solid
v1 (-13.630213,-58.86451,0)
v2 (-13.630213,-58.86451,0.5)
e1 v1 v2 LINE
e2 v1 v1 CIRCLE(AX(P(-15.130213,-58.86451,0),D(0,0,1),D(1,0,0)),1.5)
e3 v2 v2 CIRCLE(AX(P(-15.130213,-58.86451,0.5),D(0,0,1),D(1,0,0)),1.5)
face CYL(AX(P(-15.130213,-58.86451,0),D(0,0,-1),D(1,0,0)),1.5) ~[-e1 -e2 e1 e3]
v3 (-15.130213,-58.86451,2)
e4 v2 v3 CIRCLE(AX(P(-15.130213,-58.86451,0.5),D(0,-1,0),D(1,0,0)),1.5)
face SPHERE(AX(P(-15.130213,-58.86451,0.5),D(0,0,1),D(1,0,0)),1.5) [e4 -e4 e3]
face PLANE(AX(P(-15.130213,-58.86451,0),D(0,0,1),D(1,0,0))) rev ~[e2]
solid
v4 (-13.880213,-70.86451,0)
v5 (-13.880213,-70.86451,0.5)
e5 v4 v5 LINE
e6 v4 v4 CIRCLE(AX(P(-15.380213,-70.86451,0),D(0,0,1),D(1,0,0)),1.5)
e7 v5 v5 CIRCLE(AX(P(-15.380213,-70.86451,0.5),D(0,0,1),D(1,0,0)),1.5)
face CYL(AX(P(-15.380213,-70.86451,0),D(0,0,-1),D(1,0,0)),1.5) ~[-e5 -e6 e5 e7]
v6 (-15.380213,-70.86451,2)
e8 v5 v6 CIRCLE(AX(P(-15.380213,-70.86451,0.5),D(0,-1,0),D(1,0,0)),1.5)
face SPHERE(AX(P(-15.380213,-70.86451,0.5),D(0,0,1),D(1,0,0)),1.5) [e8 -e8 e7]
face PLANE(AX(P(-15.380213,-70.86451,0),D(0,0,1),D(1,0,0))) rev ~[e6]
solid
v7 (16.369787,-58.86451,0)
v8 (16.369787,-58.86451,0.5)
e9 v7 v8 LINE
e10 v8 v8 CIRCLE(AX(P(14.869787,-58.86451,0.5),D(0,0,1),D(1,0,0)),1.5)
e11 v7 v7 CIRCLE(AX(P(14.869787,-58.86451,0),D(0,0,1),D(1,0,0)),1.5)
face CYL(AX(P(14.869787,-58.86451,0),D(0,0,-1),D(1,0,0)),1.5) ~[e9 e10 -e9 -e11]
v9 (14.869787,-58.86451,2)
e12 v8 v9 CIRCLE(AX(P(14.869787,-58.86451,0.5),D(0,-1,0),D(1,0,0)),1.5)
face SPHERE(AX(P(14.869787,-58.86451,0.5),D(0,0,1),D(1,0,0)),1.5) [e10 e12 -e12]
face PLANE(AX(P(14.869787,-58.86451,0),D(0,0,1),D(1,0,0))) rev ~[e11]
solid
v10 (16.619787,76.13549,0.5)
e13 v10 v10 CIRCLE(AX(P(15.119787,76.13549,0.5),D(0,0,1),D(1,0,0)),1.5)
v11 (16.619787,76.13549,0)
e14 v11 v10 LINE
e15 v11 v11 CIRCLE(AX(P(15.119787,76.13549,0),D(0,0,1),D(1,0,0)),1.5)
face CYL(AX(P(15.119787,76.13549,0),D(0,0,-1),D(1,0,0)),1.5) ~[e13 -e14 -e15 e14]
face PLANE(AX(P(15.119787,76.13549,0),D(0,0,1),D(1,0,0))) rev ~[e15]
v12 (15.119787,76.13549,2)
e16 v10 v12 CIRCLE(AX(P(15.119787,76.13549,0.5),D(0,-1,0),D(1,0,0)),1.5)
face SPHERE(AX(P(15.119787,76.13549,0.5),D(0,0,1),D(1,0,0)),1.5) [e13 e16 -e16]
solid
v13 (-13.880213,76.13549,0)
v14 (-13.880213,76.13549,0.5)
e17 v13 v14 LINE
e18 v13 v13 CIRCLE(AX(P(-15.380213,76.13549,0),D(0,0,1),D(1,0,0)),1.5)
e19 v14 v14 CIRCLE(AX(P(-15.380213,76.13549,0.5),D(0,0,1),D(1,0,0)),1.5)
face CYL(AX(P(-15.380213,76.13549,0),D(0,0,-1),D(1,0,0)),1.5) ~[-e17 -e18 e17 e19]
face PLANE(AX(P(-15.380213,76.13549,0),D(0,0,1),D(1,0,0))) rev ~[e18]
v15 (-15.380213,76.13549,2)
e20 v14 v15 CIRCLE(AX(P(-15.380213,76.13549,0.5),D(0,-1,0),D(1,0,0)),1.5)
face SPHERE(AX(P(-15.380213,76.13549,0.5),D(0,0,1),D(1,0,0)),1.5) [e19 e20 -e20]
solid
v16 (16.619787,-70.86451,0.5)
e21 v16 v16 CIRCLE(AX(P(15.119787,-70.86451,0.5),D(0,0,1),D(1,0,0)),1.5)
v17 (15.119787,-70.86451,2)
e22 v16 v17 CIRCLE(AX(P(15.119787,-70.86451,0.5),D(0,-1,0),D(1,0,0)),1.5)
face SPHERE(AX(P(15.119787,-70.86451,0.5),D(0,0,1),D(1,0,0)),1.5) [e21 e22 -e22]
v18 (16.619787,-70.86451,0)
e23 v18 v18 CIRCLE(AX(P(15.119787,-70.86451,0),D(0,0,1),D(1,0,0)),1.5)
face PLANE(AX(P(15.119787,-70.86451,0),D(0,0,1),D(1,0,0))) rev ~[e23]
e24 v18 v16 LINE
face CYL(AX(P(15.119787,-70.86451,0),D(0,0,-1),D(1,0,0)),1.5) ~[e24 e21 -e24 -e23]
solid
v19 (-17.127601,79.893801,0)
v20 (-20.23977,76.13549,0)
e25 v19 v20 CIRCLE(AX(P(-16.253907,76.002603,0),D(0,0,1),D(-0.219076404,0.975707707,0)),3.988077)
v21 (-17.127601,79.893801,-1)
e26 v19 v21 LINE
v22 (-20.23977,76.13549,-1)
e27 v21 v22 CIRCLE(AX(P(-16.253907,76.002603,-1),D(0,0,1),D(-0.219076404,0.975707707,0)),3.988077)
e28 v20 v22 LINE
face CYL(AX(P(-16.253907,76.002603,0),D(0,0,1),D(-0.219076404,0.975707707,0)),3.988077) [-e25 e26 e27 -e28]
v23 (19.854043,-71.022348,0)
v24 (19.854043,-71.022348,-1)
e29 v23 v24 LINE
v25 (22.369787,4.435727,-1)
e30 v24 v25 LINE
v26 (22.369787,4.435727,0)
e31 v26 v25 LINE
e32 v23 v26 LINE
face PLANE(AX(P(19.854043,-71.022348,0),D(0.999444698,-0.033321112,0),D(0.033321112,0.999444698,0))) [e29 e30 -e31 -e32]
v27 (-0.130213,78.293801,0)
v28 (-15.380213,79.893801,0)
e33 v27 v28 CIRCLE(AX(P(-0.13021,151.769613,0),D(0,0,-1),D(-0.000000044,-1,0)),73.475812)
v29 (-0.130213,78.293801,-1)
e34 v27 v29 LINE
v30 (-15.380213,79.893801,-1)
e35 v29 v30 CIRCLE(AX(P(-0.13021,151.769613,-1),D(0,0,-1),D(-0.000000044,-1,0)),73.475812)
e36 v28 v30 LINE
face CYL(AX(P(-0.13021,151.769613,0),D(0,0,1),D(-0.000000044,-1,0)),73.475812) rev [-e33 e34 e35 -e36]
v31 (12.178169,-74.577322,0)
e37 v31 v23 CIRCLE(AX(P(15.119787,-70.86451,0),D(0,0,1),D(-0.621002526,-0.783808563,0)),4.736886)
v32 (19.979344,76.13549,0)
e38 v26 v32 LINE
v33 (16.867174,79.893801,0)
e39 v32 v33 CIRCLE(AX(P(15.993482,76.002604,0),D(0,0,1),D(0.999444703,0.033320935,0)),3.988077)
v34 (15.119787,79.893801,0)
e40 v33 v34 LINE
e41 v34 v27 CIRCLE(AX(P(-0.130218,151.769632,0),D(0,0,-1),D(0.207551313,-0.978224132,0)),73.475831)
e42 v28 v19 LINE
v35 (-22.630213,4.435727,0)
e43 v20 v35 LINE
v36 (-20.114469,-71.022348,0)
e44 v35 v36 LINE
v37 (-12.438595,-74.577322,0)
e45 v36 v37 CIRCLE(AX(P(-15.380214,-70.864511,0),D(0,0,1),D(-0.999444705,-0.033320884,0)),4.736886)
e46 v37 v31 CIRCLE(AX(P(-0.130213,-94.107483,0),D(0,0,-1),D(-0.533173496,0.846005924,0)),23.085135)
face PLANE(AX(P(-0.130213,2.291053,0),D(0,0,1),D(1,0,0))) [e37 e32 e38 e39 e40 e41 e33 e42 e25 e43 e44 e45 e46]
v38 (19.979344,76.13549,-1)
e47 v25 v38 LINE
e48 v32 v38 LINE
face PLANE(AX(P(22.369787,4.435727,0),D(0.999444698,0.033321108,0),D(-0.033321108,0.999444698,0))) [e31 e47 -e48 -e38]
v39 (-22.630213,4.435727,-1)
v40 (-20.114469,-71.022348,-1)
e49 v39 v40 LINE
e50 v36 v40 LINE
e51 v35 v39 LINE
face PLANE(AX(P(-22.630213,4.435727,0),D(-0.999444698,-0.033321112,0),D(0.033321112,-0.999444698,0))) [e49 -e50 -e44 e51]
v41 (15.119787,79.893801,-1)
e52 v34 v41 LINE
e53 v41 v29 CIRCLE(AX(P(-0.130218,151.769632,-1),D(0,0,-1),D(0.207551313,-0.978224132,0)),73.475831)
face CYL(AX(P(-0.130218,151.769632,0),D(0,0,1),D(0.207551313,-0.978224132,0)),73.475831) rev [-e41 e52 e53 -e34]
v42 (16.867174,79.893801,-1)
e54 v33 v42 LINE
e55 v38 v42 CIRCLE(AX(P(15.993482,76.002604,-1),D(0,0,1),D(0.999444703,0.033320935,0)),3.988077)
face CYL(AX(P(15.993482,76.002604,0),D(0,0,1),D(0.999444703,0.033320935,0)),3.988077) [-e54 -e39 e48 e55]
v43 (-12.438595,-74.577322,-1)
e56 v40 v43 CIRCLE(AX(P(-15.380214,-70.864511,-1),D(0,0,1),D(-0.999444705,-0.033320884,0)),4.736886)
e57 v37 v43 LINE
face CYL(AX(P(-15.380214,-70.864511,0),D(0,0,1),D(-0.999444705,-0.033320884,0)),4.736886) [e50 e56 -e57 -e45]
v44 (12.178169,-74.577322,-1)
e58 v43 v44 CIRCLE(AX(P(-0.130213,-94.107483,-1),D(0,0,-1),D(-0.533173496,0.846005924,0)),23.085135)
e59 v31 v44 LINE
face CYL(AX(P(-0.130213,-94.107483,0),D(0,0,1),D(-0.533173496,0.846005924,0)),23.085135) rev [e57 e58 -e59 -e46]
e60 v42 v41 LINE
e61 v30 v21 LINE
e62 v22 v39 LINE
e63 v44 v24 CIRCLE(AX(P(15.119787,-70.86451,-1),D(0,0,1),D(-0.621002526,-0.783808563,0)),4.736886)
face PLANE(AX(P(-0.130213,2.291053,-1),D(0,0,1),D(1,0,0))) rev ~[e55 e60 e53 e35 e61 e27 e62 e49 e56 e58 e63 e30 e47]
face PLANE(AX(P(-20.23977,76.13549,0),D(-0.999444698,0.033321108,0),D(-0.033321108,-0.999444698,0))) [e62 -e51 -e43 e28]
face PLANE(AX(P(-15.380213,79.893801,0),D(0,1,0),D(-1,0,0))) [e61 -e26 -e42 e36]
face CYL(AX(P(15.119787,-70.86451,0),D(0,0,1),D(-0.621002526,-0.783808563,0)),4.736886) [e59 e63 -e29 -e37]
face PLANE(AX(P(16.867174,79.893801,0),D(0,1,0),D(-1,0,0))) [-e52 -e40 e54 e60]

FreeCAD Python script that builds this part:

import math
import FreeCAD as App
import Part
import Sketcher

V = App.Vector


def edges_at(feature, points):
    """Names of the edges that pass closest to the given points."""
    edges = feature.Shape.Edges
    near = lambda p: min(range(len(edges)), key=lambda i: edges[i].distToShape(Part.Vertex(*p))[0])
    return sorted({f"Edge{near(p) + 1}" for p in points})

doc = App.newDocument("Part")
body = doc.addObject("PartDesign::Body", "Body")
body.AllowCompound = True

# Sketch on XY plane
sketch1 = body.newObject("Sketcher::SketchObject", "Sketch")
sketch1.AttachmentSupport = (doc.getObject("XY_Plane"), [""])
sketch1.MapMode = "FlatFace"
sketch1.addGeometry([
    Part.Circle(V(15.1, -70.9, 0), V(0, 0, 1), 1.5),  # 0
    Part.Circle(V(14.9, -58.9, 0), V(0, 0, 1), 1.5),  # 1
    Part.Circle(V(-15.4, -70.9, 0), V(0, 0, 1), 1.5),  # 2
    Part.Circle(V(-15.1, -58.9, 0), V(0, 0, 1), 1.5),  # 3
    Part.Circle(V(15.1, 76.1, 0), V(0, 0, 1), 1.5),  # 4
    Part.Circle(V(-15.4, 76.1, 0), V(0, 0, 1), 1.5),  # 5
], False)
sketch1.addConstraint([
    Sketcher.Constraint("Equal", 0, 1),
    Sketcher.Constraint("Equal", 1, 2),
    Sketcher.Constraint("Equal", 2, 3),
    Sketcher.Constraint("Equal", 3, 4),
    Sketcher.Constraint("Equal", 4, 5),
    Sketcher.Constraint("Horizontal", 0, 3, 2, 3),
    Sketcher.Constraint("Horizontal", 1, 3, 3, 3),
    Sketcher.Constraint("Horizontal", 4, 3, 5, 3),
    Sketcher.Constraint("Vertical", 0, 3, 4, 3),
    Sketcher.Constraint("Vertical", 2, 3, 5, 3),
    Sketcher.Constraint("Diameter", 0, 3.0),
    Sketcher.Constraint("DistanceY", 0, 3, 1, 3, 12.0),
    Sketcher.Constraint("DistanceX", 3, 3, 1, 3, 30.0),
    Sketcher.Constraint("DistanceY", 1, 3, 4, 3, 135.0),
    Sketcher.Constraint("DistanceX", 2, 3, 0, 3, 30.5),
    Sketcher.Constraint("DistanceX", 1, 3, 0, 3, 0.25),
    Sketcher.Constraint("DistanceY", 0, 3, -1, 1, 70.86451),
    Sketcher.Constraint("DistanceX", -1, 1, 0, 3, 15.119787),
])
pad1 = body.newObject("PartDesign::Pad", "Pad")
pad1.Profile = sketch1
pad1.Length = 2
doc.recompute()

fillet = body.newObject("PartDesign::Fillet", "Fillet")
fillet.Base = (pad1, edges_at(pad1, [
    (13.62, 76.135, 2),
    (-16.88, 76.135, 2),
    (13.37, -58.865, 2),
    (13.62, -70.865, 2),
    (-16.63, -58.865, 2),
    (-16.88, -70.865, 2),
]))
fillet.Radius = 1.5
body2 = doc.addObject("PartDesign::Body", "Body001")

# Sketch on XY plane
sketch2 = body2.newObject("Sketcher::SketchObject", "Sketch001")
sketch2.AttachmentSupport = (doc.getObject("XY_Plane001"), [""])
sketch2.MapMode = "FlatFace"
sketch2.addGeometry([
    Part.ArcOfCircle(Part.Circle(V(-16.253907, 76.002603, 0), V(0, 0, 1), 3.988077), math.radians(102.654792), math.radians(178.090495)),  # 0
    Part.LineSegment(V(-20.23977, 76.13549, 0), V(-22.630213, 4.435727, 0)),  # 1
    Part.LineSegment(V(-22.630213, 4.435727, 0), V(-20.114469, -71.022348, 0)),  # 2
    Part.ArcOfCircle(Part.Circle(V(-15.380214, -70.864511, 0), V(0, 0, 1), 4.736886), math.radians(-178.090501), math.radians(-51.610611)),  # 3
    Part.ArcOfCircle(Part.Circle(V(-0.130213, -94.107483, 0), V(0, 0, 1), 23.085135), math.radians(57.779873), math.radians(122.220127)),  # 4
    Part.ArcOfCircle(Part.Circle(V(15.119787, -70.86451, 0), V(0, 0, 1), 4.736886), math.radians(-128.389381), math.radians(-1.909508)),  # 5
    Part.LineSegment(V(19.854043, -71.022348, 0), V(22.369787, 4.435727, 0)),  # 6
    Part.LineSegment(V(22.369787, 4.435727, 0), V(19.979344, 76.13549, 0)),  # 7
    Part.ArcOfCircle(Part.Circle(V(15.993482, 76.002604, 0), V(0, 0, 1), 3.988077), math.radians(1.909502), math.radians(77.345229)),  # 8
    Part.LineSegment(V(16.867174, 79.893801, 0), V(15.119787, 79.893801, 0)),  # 9
    Part.ArcOfCircle(Part.Circle(V(-0.130218, 151.769632, 0), V(0, 0, 1), 73.475831), math.radians(-89.999996), math.radians(-78.021109)),  # 10
    Part.ArcOfCircle(Part.Circle(V(-0.13021, 151.769613, 0), V(0, 0, 1), 73.475812), math.radians(-101.978893), math.radians(-90.000003)),  # 11
    Part.LineSegment(V(-15.380213, 79.893801, 0), V(-17.127601, 79.893801, 0)),  # 12
], False)
sketch2.addConstraint([
    Sketcher.Constraint("Coincident", 0, 2, 1, 1),
    Sketcher.Constraint("Coincident", 1, 2, 2, 1),
    Sketcher.Constraint("Coincident", 2, 2, 3, 1),
    Sketcher.Constraint("Coincident", 3, 2, 4, 2),
    Sketcher.Constraint("Coincident", 4, 1, 5, 1),
    Sketcher.Constraint("Coincident", 5, 2, 6, 1),
    Sketcher.Constraint("Coincident", 6, 2, 7, 1),
    Sketcher.Constraint("Coincident", 7, 2, 8, 1),
    Sketcher.Constraint("Coincident", 8, 2, 9, 1),
    Sketcher.Constraint("Coincident", 9, 2, 10, 2),
    Sketcher.Constraint("Coincident", 10, 1, 11, 2),
    Sketcher.Constraint("Coincident", 11, 1, 12, 1),
    Sketcher.Constraint("Coincident", 12, 2, 0, 1),
    Sketcher.Constraint("Horizontal", 9),
    Sketcher.Constraint("Horizontal", 12),
    Sketcher.Constraint("DistanceY", 3, 3, 0, 2, 147.000001),
    Sketcher.Constraint("DistanceX", 1, 2, 6, 2, 45.0),
    Sketcher.Constraint("Distance", 2, 75.5),
    Sketcher.Constraint("Distance", 6, 75.5),
    Sketcher.Constraint("DistanceX", 3, 3, 5, 3, 30.500001),
    Sketcher.Constraint("DistanceY", 10, 1, 9, 2, 1.6),
    Sketcher.Constraint("DistanceY", 10, 1, 11, 1, 1.6),
    Sketcher.Constraint("DistanceX", 11, 1, 9, 2, 30.5),
    Sketcher.Constraint("Radius", 10, 73.475831),
    Sketcher.Constraint("DistanceX", 3, 3, 4, 3, 15.250001),
    Sketcher.Constraint("DistanceX", 1, 2, 3, 3, 7.249999),
    Sketcher.Constraint("DistanceX", 10, 1, 9, 2, 15.25),
    Sketcher.Constraint("Radius", 0, 3.988077),
    Sketcher.Constraint("Radius", 3, 4.736886),
    Sketcher.Constraint("Radius", 4, 23.085135),
    Sketcher.Constraint("Radius", 5, 4.736886),
    Sketcher.Constraint("Radius", 8, 3.988077),
    Sketcher.Constraint("Radius", 11, 73.475812),
    Sketcher.Constraint("Distance", 1, 71.7396),
    Sketcher.Constraint("Distance", 7, 71.7396),
    Sketcher.Constraint("DistanceY", -1, 1, 8, 2, 79.893801),
    Sketcher.Constraint("DistanceX", 12, 2, -1, 1, 17.127601),
    Sketcher.Constraint("DistanceX", 10, 3, 8, 3, 16.1237),
    Sketcher.Constraint("DistanceX", 9, 2, 9, 1, 1.747387),
    Sketcher.Constraint("DistanceX", 12, 2, 12, 1, 1.747388),
    Sketcher.Constraint("DistanceY", 3, 3, -1, 1, 70.864511),
    Sketcher.Constraint("DistanceY", 5, 3, -1, 1, 70.86451),
    Sketcher.Constraint("DistanceX", 0, 2, -1, 1, 20.23977),
    Sketcher.Constraint("DistanceX", 2, 2, -1, 1, 20.114469),
    Sketcher.Constraint("DistanceX", -1, 1, 4, 1, 12.178169),
    Sketcher.Constraint("DistanceY", -1, 1, 7, 2, 76.13549),
])
pad2 = body2.newObject("PartDesign::Pad", "Pad001")
pad2.Profile = sketch2
pad2.Length = 1
pad2.Reversed = True

doc.recompute()
